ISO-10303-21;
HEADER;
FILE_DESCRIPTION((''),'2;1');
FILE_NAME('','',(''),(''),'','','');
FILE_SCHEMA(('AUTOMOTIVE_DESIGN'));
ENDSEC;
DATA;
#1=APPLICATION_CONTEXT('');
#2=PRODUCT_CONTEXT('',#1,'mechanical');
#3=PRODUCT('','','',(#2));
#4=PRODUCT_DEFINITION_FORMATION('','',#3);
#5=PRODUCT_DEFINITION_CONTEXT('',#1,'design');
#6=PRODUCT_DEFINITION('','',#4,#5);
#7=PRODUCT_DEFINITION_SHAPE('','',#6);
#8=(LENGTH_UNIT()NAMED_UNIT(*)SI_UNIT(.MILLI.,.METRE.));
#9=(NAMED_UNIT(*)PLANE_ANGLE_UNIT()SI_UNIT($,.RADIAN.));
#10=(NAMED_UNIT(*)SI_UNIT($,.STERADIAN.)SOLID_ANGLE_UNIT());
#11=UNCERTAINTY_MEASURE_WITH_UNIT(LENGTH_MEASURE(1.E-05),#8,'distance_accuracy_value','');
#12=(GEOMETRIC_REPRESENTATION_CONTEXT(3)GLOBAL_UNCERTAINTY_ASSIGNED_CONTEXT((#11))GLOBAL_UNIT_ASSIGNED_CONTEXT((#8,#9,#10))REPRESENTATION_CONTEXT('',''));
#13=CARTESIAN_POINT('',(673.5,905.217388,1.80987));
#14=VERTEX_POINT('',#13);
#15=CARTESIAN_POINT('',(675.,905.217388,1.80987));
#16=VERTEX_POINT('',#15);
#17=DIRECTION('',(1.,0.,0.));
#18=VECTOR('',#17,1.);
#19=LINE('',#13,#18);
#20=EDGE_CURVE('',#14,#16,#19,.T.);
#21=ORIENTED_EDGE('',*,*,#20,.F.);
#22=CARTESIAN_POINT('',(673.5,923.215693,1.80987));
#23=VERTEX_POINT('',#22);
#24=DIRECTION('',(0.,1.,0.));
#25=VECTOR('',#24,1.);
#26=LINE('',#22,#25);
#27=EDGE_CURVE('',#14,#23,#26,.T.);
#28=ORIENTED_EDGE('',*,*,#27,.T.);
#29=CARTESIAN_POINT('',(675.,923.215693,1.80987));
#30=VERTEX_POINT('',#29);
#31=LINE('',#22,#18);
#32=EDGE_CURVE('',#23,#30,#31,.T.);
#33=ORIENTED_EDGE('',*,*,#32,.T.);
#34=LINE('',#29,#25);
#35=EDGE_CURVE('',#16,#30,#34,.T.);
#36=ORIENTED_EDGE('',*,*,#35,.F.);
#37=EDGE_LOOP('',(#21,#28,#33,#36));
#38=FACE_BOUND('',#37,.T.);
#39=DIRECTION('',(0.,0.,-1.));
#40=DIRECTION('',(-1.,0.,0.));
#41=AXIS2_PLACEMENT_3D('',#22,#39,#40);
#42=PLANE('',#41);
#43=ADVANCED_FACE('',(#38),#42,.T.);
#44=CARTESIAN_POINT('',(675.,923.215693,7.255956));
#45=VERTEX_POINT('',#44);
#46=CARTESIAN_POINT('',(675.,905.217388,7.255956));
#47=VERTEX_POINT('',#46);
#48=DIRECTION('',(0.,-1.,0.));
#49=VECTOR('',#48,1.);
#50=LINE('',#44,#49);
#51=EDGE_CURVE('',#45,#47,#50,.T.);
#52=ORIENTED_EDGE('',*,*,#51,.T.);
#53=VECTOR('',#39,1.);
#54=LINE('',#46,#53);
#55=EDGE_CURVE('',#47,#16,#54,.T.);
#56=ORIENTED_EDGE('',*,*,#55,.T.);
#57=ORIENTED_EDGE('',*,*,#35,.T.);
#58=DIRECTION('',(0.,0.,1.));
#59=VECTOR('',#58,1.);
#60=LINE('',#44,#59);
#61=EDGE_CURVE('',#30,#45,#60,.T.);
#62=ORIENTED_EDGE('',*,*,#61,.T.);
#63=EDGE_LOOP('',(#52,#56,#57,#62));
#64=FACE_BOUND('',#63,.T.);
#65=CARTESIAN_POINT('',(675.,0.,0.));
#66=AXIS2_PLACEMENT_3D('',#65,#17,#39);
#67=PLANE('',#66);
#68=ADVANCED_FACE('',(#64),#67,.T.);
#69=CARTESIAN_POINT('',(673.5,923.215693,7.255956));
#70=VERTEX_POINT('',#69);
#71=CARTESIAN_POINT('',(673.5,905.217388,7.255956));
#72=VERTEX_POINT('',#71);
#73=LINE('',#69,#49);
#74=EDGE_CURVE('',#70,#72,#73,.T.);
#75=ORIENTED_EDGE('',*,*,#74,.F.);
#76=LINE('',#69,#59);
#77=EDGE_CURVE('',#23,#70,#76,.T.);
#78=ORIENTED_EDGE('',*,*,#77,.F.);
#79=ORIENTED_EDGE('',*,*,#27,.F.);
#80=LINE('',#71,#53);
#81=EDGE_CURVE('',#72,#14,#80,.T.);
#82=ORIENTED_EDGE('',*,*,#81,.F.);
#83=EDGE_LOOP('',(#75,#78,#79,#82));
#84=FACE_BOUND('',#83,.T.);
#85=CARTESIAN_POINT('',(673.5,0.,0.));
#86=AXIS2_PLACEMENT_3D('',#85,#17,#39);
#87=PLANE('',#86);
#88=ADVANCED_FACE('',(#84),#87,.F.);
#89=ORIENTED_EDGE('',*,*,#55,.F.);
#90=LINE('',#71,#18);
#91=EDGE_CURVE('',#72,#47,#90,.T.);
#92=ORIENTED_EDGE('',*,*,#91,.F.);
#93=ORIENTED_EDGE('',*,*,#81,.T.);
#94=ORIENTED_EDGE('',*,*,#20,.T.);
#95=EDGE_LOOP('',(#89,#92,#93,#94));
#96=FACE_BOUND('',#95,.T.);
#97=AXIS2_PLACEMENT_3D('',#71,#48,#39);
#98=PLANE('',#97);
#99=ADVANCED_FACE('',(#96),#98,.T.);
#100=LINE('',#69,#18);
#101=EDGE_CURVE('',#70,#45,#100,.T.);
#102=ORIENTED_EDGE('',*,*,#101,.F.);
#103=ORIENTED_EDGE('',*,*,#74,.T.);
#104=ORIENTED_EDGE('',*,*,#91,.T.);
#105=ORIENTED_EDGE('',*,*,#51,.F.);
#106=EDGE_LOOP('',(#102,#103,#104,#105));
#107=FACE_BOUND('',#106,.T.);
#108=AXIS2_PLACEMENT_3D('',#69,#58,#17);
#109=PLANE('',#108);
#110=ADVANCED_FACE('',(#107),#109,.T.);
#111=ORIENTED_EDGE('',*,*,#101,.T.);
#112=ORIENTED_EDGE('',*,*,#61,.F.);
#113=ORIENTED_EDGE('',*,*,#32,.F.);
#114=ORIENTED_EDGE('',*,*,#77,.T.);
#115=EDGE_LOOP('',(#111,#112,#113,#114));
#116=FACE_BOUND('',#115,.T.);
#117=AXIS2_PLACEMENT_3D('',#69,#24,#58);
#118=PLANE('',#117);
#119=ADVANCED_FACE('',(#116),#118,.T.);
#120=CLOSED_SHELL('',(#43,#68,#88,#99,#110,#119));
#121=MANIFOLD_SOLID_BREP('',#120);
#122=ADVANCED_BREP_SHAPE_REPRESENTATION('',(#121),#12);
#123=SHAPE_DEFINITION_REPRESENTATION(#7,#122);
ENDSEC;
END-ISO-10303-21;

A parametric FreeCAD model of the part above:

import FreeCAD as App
import Part
import Sketcher

V = App.Vector
Q = App.Units.Quantity


def add_polygon(sketch, points):
    """Adds a closed chain of lines whose ends are joined by coincident constraints."""
    first, n = sketch.GeometryCount, len(points)
    for a, b in zip(points, points[1:] + points[:1]):
        sketch.addGeometry(Part.LineSegment(App.Vector(*a, 0), App.Vector(*b, 0)), False)
    for i in range(n):
        sketch.addConstraint(Sketcher.Constraint("Coincident", first + i, 2, first + (i + 1) % n, 1))

doc = App.newDocument("Part")
body = doc.addObject("PartDesign::Body", "Body")

sketch1 = body.newObject("Sketcher::SketchObject", "Sketch")
sketch1.AttachmentSupport = (doc.getObject("YZ_Plane"), [""])
sketch1.MapMode = "FlatFace"
sketch1.AttachmentOffset = App.Placement(V(0, 0, 675), App.Rotation())
add_polygon(sketch1, [(923.215693, 7.255956), (905.217388, 7.255956), (905.217388, 1.80987), (923.215693, 1.80987)])
sketch1.addConstraint([
    Sketcher.Constraint("Horizontal", 0),
    Sketcher.Constraint("Vertical", 1),
    Sketcher.Constraint("Horizontal", 2),
    Sketcher.Constraint("Vertical", 3),
    Sketcher.Constraint("DistanceX", 0, 2, 0, 1, Q("17.998305 mm")),
    Sketcher.Constraint("DistanceY", 1, 2, 1, 1, Q("5.446085 mm")),
    Sketcher.Constraint("DistanceX", -1, 1, 0, 2, Q("905.217388 mm")),
    Sketcher.Constraint("DistanceY", -1, 1, 1, 2, Q("1.80987 mm")),
])
pad1 = body.newObject("PartDesign::Pad", "Pad")
pad1.Profile = sketch1
pad1.Length = 1.5
pad1.Reversed = True

doc.recompute()
